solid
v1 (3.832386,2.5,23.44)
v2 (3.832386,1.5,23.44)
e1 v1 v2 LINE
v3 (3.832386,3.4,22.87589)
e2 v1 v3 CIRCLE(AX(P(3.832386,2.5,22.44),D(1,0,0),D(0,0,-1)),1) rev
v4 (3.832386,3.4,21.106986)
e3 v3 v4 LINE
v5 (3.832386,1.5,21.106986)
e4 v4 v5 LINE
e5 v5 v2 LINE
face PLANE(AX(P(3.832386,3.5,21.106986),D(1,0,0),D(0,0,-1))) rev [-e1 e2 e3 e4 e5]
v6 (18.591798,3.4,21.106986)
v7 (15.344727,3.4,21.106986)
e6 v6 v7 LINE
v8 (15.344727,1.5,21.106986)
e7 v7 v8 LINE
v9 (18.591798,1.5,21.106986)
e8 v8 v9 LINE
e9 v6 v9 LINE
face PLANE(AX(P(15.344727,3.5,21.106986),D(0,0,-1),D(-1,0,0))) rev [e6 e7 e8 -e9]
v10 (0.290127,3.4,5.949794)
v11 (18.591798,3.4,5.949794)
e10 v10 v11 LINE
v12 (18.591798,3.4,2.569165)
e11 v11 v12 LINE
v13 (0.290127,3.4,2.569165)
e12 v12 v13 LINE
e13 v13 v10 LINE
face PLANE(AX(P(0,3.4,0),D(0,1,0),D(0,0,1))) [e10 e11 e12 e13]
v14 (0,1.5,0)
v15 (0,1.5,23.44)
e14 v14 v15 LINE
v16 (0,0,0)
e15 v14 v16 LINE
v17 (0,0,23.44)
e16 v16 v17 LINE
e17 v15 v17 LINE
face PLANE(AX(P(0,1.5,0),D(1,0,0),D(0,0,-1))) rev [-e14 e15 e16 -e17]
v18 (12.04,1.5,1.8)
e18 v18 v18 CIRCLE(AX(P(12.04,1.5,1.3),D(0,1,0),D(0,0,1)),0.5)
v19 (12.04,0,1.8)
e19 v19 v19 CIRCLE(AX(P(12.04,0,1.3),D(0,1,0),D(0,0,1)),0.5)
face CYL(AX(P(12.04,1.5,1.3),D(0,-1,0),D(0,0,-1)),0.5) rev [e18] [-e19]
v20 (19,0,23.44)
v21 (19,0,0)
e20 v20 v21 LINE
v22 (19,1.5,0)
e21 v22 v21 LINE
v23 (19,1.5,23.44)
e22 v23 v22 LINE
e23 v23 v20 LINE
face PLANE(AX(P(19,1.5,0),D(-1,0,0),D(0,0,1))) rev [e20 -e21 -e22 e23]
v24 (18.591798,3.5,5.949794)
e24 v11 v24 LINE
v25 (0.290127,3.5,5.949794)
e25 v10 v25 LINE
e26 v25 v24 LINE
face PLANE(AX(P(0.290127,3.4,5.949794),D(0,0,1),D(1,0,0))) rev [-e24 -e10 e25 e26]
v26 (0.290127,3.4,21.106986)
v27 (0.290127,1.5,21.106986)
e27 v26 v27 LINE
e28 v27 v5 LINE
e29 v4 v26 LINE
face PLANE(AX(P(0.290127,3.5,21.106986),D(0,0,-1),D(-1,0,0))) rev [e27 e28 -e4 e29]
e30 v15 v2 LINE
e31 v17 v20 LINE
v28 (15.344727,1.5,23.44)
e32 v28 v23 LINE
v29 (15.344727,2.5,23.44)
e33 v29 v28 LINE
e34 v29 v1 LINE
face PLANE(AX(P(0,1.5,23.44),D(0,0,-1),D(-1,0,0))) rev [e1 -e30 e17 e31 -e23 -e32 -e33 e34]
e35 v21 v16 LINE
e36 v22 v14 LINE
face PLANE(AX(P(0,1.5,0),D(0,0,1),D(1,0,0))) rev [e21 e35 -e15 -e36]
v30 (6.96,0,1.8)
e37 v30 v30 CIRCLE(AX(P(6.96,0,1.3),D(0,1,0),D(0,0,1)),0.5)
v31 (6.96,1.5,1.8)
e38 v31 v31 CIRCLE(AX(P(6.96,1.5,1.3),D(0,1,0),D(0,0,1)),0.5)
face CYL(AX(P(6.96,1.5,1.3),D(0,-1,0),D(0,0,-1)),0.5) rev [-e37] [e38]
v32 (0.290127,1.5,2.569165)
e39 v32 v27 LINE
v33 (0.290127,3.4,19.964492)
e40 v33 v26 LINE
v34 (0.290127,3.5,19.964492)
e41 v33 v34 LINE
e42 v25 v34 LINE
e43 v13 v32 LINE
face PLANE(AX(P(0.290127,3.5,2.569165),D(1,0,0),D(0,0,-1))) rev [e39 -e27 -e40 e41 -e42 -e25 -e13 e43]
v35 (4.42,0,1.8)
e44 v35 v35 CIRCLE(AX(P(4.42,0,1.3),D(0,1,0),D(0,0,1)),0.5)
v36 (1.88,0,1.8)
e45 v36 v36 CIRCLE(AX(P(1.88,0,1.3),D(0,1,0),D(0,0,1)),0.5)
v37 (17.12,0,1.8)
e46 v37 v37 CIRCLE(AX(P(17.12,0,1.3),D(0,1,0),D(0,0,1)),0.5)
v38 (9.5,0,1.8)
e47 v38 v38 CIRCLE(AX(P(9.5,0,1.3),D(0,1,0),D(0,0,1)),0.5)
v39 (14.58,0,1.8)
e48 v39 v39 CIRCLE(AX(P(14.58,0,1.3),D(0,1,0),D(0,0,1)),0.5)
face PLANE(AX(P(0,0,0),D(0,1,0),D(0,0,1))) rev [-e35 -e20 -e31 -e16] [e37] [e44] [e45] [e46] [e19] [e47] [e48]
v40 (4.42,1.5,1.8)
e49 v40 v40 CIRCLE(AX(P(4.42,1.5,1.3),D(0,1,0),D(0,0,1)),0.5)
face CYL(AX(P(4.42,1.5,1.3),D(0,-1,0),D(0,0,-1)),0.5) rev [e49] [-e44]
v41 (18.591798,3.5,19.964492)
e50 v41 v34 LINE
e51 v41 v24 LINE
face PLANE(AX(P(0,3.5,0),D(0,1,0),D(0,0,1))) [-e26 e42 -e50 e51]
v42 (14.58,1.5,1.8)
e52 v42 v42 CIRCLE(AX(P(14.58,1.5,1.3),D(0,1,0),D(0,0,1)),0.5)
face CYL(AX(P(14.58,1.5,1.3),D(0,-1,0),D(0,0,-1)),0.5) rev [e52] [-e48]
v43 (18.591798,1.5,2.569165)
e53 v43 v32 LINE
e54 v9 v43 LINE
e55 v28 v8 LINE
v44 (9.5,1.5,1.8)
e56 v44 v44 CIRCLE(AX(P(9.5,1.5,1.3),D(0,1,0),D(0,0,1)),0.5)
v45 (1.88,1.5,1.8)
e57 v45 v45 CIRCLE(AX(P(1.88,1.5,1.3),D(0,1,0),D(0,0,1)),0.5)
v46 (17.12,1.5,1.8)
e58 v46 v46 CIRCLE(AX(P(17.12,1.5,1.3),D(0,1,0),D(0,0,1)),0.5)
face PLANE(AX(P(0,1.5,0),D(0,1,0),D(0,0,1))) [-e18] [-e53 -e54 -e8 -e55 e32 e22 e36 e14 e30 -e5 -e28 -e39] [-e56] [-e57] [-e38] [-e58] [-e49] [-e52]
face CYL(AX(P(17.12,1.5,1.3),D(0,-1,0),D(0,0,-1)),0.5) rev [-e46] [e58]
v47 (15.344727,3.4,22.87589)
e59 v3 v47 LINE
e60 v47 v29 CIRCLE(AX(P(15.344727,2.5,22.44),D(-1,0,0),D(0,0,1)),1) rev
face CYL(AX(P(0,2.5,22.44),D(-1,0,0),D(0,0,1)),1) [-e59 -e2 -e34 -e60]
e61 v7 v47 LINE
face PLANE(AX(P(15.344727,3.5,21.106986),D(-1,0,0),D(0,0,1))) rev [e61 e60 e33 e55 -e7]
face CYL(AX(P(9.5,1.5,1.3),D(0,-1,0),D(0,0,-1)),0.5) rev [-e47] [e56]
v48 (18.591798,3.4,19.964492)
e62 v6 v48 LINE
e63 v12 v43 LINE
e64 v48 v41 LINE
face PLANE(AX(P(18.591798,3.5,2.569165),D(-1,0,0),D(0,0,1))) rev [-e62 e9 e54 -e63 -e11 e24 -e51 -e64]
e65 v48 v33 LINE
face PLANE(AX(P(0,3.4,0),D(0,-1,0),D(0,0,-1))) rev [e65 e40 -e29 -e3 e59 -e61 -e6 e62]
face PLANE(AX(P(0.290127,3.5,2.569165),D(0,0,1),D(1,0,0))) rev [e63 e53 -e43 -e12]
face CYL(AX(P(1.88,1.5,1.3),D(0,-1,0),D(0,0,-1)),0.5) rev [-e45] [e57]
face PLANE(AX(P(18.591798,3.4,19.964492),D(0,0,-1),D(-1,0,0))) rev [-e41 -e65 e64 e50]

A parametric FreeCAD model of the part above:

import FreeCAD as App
import Part
import Sketcher
from FreeCAD import Vector


def edges_at(feature, points):
    """Names of the edges that pass closest to the given points."""
    edges = feature.Shape.Edges
    near = lambda p: min(range(len(edges)), key=lambda i: edges[i].distToShape(Part.Vertex(*p))[0])
    return sorted({f"Edge{near(p) + 1}" for p in points})

doc = App.newDocument("Part")
body = doc.addObject("PartDesign::Body", "Body")

# Sketch on XZ plane
sketch1 = doc.addObject("Sketcher::SketchObject", "Sketch")
body.addObject(sketch1)
sketch1.AttachmentSupport = (doc.XZ_Plane, [""])
sketch1.MapMode = "FlatFace"
sketch1.addGeometry(Part.LineSegment(Vector(0, 0, 0), Vector(0, 23.4, 0)), False)
sketch1.addGeometry(Part.LineSegment(Vector(0, 23.4, 0), Vector(19, 23.4, 0)), False)
sketch1.addGeometry(Part.LineSegment(Vector(19, 23.4, 0), Vector(19, 0, 0)), False)
sketch1.addGeometry(Part.LineSegment(Vector(19, 0, 0), Vector(0, 0, 0)), False)
sketch1.addGeometry(Part.Circle(Vector(1.9, 1.3, 0), Vector(0, 0, 1), 0.5), False)
sketch1.addGeometry(Part.Circle(Vector(4.4, 1.3, 0), Vector(0, 0, 1), 0.5), False)
sketch1.addGeometry(Part.Circle(Vector(7, 1.3, 0), Vector(0, 0, 1), 0.5), False)
sketch1.addGeometry(Part.Circle(Vector(9.5, 1.3, 0), Vector(0, 0, 1), 0.5), False)
sketch1.addGeometry(Part.Circle(Vector(12, 1.3, 0), Vector(0, 0, 1), 0.5), False)
sketch1.addGeometry(Part.Circle(Vector(14.6, 1.3, 0), Vector(0, 0, 1), 0.5), False)
sketch1.addGeometry(Part.Circle(Vector(17.1, 1.3, 0), Vector(0, 0, 1), 0.5), False)
sketch1.addConstraint(Sketcher.Constraint("Coincident", 0, 2, 1, 1))
sketch1.addConstraint(Sketcher.Constraint("Coincident", 1, 2, 2, 1))
sketch1.addConstraint(Sketcher.Constraint("Coincident", 2, 2, 3, 1))
sketch1.addConstraint(Sketcher.Constraint("Coincident", 3, 2, 0, 1))
sketch1.addConstraint(Sketcher.Constraint("Vertical", 0))
sketch1.addConstraint(Sketcher.Constraint("Horizontal", 1))
sketch1.addConstraint(Sketcher.Constraint("Vertical", 2))
sketch1.addConstraint(Sketcher.Constraint("Horizontal", 3))
sketch1.addConstraint(Sketcher.Constraint("Coincident", 3, 2, -1, 1))
sketch1.addConstraint(Sketcher.Constraint("Equal", 4, 5))
sketch1.addConstraint(Sketcher.Constraint("Equal", 5, 6))
sketch1.addConstraint(Sketcher.Constraint("Equal", 6, 7))
sketch1.addConstraint(Sketcher.Constraint("Equal", 7, 8))
sketch1.addConstraint(Sketcher.Constraint("Equal", 8, 9))
sketch1.addConstraint(Sketcher.Constraint("Equal", 9, 10))
sketch1.addConstraint(Sketcher.Constraint("Horizontal", 4, 3, 5, 3))
sketch1.addConstraint(Sketcher.Constraint("Horizontal", 5, 3, 6, 3))
sketch1.addConstraint(Sketcher.Constraint("Horizontal", 6, 3, 7, 3))
sketch1.addConstraint(Sketcher.Constraint("Horizontal", 7, 3, 8, 3))
sketch1.addConstraint(Sketcher.Constraint("Horizontal", 8, 3, 9, 3))
sketch1.addConstraint(Sketcher.Constraint("Horizontal", 9, 3, 10, 3))
sketch1.addConstraint(Sketcher.Constraint("Diameter", 4, 1.0))
sketch1.addConstraint(Sketcher.Constraint("DistanceX", 1, 1, 1, 2, 19.0))
sketch1.addConstraint(Sketcher.Constraint("DistanceY", 0, 1, 0, 2, 23.44))
sketch1.addConstraint(Sketcher.Constraint("DistanceY", -1, 1, 4, 3, 1.3))
sketch1.addConstraint(Sketcher.Constraint("DistanceX", -1, 1, 7, 3, 9.5))
sketch1.addConstraint(Sketcher.Constraint("DistanceX", 4, 3, 9, 3, 12.7))
sketch1.addConstraint(Sketcher.Constraint("DistanceX", 5, 3, 10, 3, 12.7))
sketch1.addConstraint(Sketcher.Constraint("DistanceX", -1, 1, 4, 3, 1.88))
sketch1.addConstraint(Sketcher.Constraint("DistanceX", -1, 1, 5, 3, 4.42))
sketch1.addConstraint(Sketcher.Constraint("DistanceX", -1, 1, 6, 3, 6.96))
sketch1.addConstraint(Sketcher.Constraint("DistanceX", -1, 1, 8, 3, 12.04))
pad1 = doc.addObject("PartDesign::Pad", "Pad")
body.addObject(pad1)
pad1.Profile = sketch1
pad1.Length = 1.5
pad1.Reversed = True

# Sketch on XZ plane
sketch2 = doc.addObject("Sketcher::SketchObject", "Sketch001")
body.addObject(sketch2)
sketch2.AttachmentSupport = (doc.XZ_Plane, [""])
sketch2.MapMode = "FlatFace"
sketch2.AttachmentOffset = App.Placement(Vector(0, 0, -1.5), App.Rotation())
sketch2.addGeometry(Part.LineSegment(Vector(3.8, 21.1, 0), Vector(3.8, 23.4, 0)), False)
sketch2.addGeometry(Part.LineSegment(Vector(3.8, 23.4, 0), Vector(15.3, 23.4, 0)), False)
sketch2.addGeometry(Part.LineSegment(Vector(15.3, 23.4, 0), Vector(15.3, 21.1, 0)), False)
sketch2.addGeometry(Part.LineSegment(Vector(15.3, 21.1, 0), Vector(18.6, 21.1, 0)), False)
sketch2.addGeometry(Part.LineSegment(Vector(18.6, 21.1, 0), Vector(18.6, 2.6, 0)), False)
sketch2.addGeometry(Part.LineSegment(Vector(18.6, 2.6, 0), Vector(0.3, 2.6, 0)), False)
sketch2.addGeometry(Part.LineSegment(Vector(0.3, 2.6, 0), Vector(0.3, 21.1, 0)), False)
sketch2.addGeometry(Part.LineSegment(Vector(0.3, 21.1, 0), Vector(3.8, 21.1, 0)), False)
sketch2.addConstraint(Sketcher.Constraint("Coincident", 0, 2, 1, 1))
sketch2.addConstraint(Sketcher.Constraint("Coincident", 1, 2, 2, 1))
sketch2.addConstraint(Sketcher.Constraint("Coincident", 2, 2, 3, 1))
sketch2.addConstraint(Sketcher.Constraint("Coincident", 3, 2, 4, 1))
sketch2.addConstraint(Sketcher.Constraint("Coincident", 4, 2, 5, 1))
sketch2.addConstraint(Sketcher.Constraint("Coincident", 5, 2, 6, 1))
sketch2.addConstraint(Sketcher.Constraint("Coincident", 6, 2, 7, 1))
sketch2.addConstraint(Sketcher.Constraint("Coincident", 7, 2, 0, 1))
sketch2.addConstraint(Sketcher.Constraint("Vertical", 0))
sketch2.addConstraint(Sketcher.Constraint("Horizontal", 1))
sketch2.addConstraint(Sketcher.Constraint("Vertical", 2))
sketch2.addConstraint(Sketcher.Constraint("Horizontal", 3))
sketch2.addConstraint(Sketcher.Constraint("Vertical", 4))
sketch2.addConstraint(Sketcher.Constraint("Horizontal", 5))
sketch2.addConstraint(Sketcher.Constraint("Vertical", 6))
sketch2.addConstraint(Sketcher.Constraint("Horizontal", 7))
sketch2.addConstraint(Sketcher.Constraint("Horizontal", 3, 2, 6, 2))
sketch2.addConstraint(Sketcher.Constraint("DistanceY", -1, 1, 0, 2, 23.44))
sketch2.addConstraint(Sketcher.Constraint("DistanceX", 1, 1, 1, 2, 11.512341))
sketch2.addConstraint(Sketcher.Constraint("DistanceX", 3, 1, 3, 2, 3.247071))
sketch2.addConstraint(Sketcher.Constraint("DistanceX", 5, 2, 5, 1, 18.30167))
sketch2.addConstraint(Sketcher.Constraint("DistanceY", 4, 2, 4, 1, 18.537821))
sketch2.addConstraint(Sketcher.Constraint("DistanceY", 0, 1, 0, 2, 2.333014))
sketch2.addConstraint(Sketcher.Constraint("DistanceX", -1, 1, 0, 2, 3.832386))
pad2 = doc.addObject("PartDesign::Pad", "Pad001")
body.addObject(pad2)
pad2.Profile = sketch2
pad2.Length = 2
pad2.Reversed = True
doc.recompute()

fillet = doc.addObject("PartDesign::Fillet", "Fillet")
body.addObject(fillet)
fillet.Base = (pad2, edges_at(pad2, [(9.589, 3.5, 23.44)]))
fillet.Radius = 1

# Sketch on XZ plane
sketch3 = doc.addObject("Sketcher::SketchObject", "Sketch002")
body.addObject(sketch3)
sketch3.AttachmentSupport = (doc.XZ_Plane, [""])
sketch3.MapMode = "FlatFace"
sketch3.AttachmentOffset = App.Placement(Vector(0, 0, -3.5), App.Rotation())
sketch3.addGeometry(Part.LineSegment(Vector(0.3, 2.6, 0), Vector(0.3, 5.9, 0)), False)
sketch3.addGeometry(Part.LineSegment(Vector(0.3, 5.9, 0), Vector(18.6, 5.9, 0)), False)
sketch3.addGeometry(Part.LineSegment(Vector(18.6, 5.9, 0), Vector(18.6, 2.6, 0)), False)
sketch3.addGeometry(Part.LineSegment(Vector(18.6, 2.6, 0), Vector(0.3, 2.6, 0)), False)
sketch3.addGeometry(Part.LineSegment(Vector(0.3, 20, 0), Vector(0.3, 23.4, 0)), False)
sketch3.addGeometry(Part.LineSegment(Vector(0.3, 23.4, 0), Vector(18.6, 23.4, 0)), False)
sketch3.addGeometry(Part.LineSegment(Vector(18.6, 23.4, 0), Vector(18.6, 20, 0)), False)
sketch3.addGeometry(Part.LineSegment(Vector(18.6, 20, 0), Vector(0.3, 20, 0)), False)
sketch3.addConstraint(Sketcher.Constraint("Coincident", 0, 2, 1, 1))
sketch3.addConstraint(Sketcher.Constraint("Coincident", 1, 2, 2, 1))
sketch3.addConstraint(Sketcher.Constraint("Coincident", 2, 2, 3, 1))
sketch3.addConstraint(Sketcher.Constraint("Coincident", 3, 2, 0, 1))
sketch3.addConstraint(Sketcher.Constraint("Coincident", 4, 2, 5, 1))
sketch3.addConstraint(Sketcher.Constraint("Coincident", 5, 2, 6, 1))
sketch3.addConstraint(Sketcher.Constraint("Coincident", 6, 2, 7, 1))
sketch3.addConstraint(Sketcher.Constraint("Coincident", 7, 2, 4, 1))
sketch3.addConstraint(Sketcher.Constraint("Vertical", 0))
sketch3.addConstraint(Sketcher.Constraint("Horizontal", 1))
sketch3.addConstraint(Sketcher.Constraint("Vertical", 2))
sketch3.addConstraint(Sketcher.Constraint("Horizontal", 3))
sketch3.addConstraint(Sketcher.Constraint("Vertical", 4))
sketch3.addConstraint(Sketcher.Constraint("Horizontal", 5))
sketch3.addConstraint(Sketcher.Constraint("Vertical", 6))
sketch3.addConstraint(Sketcher.Constraint("Horizontal", 7))
sketch3.addConstraint(Sketcher.Constraint("Vertical", 3, 2, 4, 2))
sketch3.addConstraint(Sketcher.Constraint("Vertical", 2, 2, 5, 2))
sketch3.addConstraint(Sketcher.Constraint("DistanceY", -1, 1, 4, 2, 23.44))
sketch3.addConstraint(Sketcher.Constraint("DistanceX", 1, 1, 1, 2, 18.30167))
sketch3.addConstraint(Sketcher.Constraint("DistanceY", 0, 1, 0, 2, 3.380629))
sketch3.addConstraint(Sketcher.Constraint("DistanceY", 4, 1, 4, 2, 3.475508))
sketch3.addConstraint(Sketcher.Constraint("DistanceX", -1, 1, 0, 2, 0.290127))
sketch3.addConstraint(Sketcher.Constraint("DistanceY", -1, 1, 0, 2, 5.949794))
pocket1 = doc.addObject("PartDesign::Pocket", "Pocket")
body.addObject(pocket1)
pocket1.Profile = sketch3
pocket1.Length = 0.1
pocket1.Reversed = True

doc.recompute()
